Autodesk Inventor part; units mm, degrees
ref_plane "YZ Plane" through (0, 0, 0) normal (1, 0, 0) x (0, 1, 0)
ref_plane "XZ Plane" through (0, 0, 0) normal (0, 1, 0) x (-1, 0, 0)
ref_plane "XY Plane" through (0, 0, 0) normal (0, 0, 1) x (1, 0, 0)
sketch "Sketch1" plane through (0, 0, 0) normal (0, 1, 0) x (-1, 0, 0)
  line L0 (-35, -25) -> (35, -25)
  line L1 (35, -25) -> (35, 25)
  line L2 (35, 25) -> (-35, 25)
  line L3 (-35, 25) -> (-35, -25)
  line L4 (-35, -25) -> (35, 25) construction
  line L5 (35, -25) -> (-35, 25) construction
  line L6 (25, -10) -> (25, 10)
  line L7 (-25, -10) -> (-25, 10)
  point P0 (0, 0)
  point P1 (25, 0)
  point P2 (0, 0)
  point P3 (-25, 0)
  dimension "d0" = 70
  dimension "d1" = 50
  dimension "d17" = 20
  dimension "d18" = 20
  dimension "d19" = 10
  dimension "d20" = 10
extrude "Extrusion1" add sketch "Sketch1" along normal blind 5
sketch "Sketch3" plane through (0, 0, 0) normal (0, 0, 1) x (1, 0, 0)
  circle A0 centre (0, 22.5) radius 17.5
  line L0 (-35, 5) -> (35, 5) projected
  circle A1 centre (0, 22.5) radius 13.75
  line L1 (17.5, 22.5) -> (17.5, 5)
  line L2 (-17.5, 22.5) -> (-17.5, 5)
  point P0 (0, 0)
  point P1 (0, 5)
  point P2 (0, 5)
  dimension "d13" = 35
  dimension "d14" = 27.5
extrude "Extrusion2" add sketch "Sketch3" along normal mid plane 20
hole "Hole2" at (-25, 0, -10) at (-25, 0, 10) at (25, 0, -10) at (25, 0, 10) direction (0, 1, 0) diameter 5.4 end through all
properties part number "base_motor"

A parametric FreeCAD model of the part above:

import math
import FreeCAD as App
import Part
import Sketcher
Q = App.Units.Quantity

doc = App.newDocument("Part")
body = doc.addObject("PartDesign::Body", "Body")

sketch1 = doc.addObject("Sketcher::SketchObject", "Sketch")
body.addObject(sketch1)
sketch1.AttachmentSupport = (doc.XZ_Plane, [""])
sketch1.MapMode = "FlatFace"
sketch1.addGeometry(Part.LineSegment(App.Vector(35, 25, 0), App.Vector(35, -25, 0)), False)
sketch1.addGeometry(Part.LineSegment(App.Vector(35, -25, 0), App.Vector(-35, -25, 0)), False)
sketch1.addGeometry(Part.LineSegment(App.Vector(-35, -25, 0), App.Vector(-35, 25, 0)), False)
sketch1.addGeometry(Part.LineSegment(App.Vector(-35, 25, 0), App.Vector(35, 25, 0)), False)
sketch1.addConstraint(Sketcher.Constraint("Coincident", 0, 2, 1, 1))
sketch1.addConstraint(Sketcher.Constraint("Coincident", 1, 2, 2, 1))
sketch1.addConstraint(Sketcher.Constraint("Coincident", 2, 2, 3, 1))
sketch1.addConstraint(Sketcher.Constraint("Coincident", 3, 2, 0, 1))
sketch1.addConstraint(Sketcher.Constraint("Vertical", 0))
sketch1.addConstraint(Sketcher.Constraint("Horizontal", 1))
sketch1.addConstraint(Sketcher.Constraint("Vertical", 2))
sketch1.addConstraint(Sketcher.Constraint("Horizontal", 3))
sketch1.addConstraint(Sketcher.Constraint("Symmetric", 0, 2, 2, 2, -1, 1))
sketch1.addConstraint(Sketcher.Constraint("DistanceX", 1, 2, 1, 1, Q("70 mm")))
sketch1.addConstraint(Sketcher.Constraint("DistanceY", 0, 2, 0, 1, Q("50 mm")))
pad1 = doc.addObject("PartDesign::Pad", "Pad")
body.addObject(pad1)
pad1.Profile = sketch1
pad1.Length = 5
pad1.Reversed = True

sketch2 = doc.addObject("Sketcher::SketchObject", "Sketch001")
body.addObject(sketch2)
sketch2.AttachmentSupport = (doc.XY_Plane, [""])
sketch2.MapMode = "FlatFace"
sketch2.addGeometry(Part.ArcOfCircle(Part.Circle(App.Vector(0, 22.5, 0), App.Vector(0, 0, 1), 17.5), math.radians(0), math.radians(180)), False)
sketch2.addGeometry(Part.LineSegment(App.Vector(-17.5, 22.5, 0), App.Vector(-17.5, 5, 0)), False)
sketch2.addGeometry(Part.LineSegment(App.Vector(-17.5, 5, 0), App.Vector(17.5, 5, 0)), False)
sketch2.addGeometry(Part.LineSegment(App.Vector(17.5, 5, 0), App.Vector(17.5, 22.5, 0)), False)
sketch2.addGeometry(Part.Circle(App.Vector(0, 22.5, 0), App.Vector(0, 0, 1), 13.75), False)
sketch2.addConstraint(Sketcher.Constraint("Tangent", 0, 2, 1, 1))
sketch2.addConstraint(Sketcher.Constraint("Coincident", 1, 2, 2, 1))
sketch2.addConstraint(Sketcher.Constraint("Coincident", 2, 2, 3, 1))
sketch2.addConstraint(Sketcher.Constraint("Tangent", 3, 2, 0, 1))
sketch2.addConstraint(Sketcher.Constraint("Vertical", 1))
sketch2.addConstraint(Sketcher.Constraint("Horizontal", 2))
sketch2.addConstraint(Sketcher.Constraint("Vertical", 3))
sketch2.addConstraint(Sketcher.Constraint("Coincident", 4, 3, 0, 3))
sketch2.addConstraint(Sketcher.Constraint("PointOnObject", 0, 3, -2))
sketch2.addConstraint(Sketcher.Constraint("Diameter", 4, Q("27.5 mm")))
sketch2.addConstraint(Sketcher.Constraint("Radius", 0, Q("17.5 mm")))
sketch2.addConstraint(Sketcher.Constraint("DistanceY", 1, 2, 1, 1, Q("17.5 mm")))
sketch2.addConstraint(Sketcher.Constraint("DistanceY", -1, 1, 1, 2, Q("5 mm")))
pad2 = doc.addObject("PartDesign::Pad", "Pad001")
body.addObject(pad2)
pad2.Profile = sketch2
pad2.Length = 20
pad2.Midplane = True

sketch3 = doc.addObject("Sketcher::SketchObject", "Sketch002")
body.addObject(sketch3)
sketch3.AttachmentSupport = (doc.XZ_Plane, [""])
sketch3.MapMode = "FlatFace"
sketch3.addGeometry(Part.Circle(App.Vector(-25, -10, 0), App.Vector(0, 0, 1), 2.7), False)
sketch3.addGeometry(Part.Circle(App.Vector(-25, 10, 0), App.Vector(0, 0, 1), 2.7), False)
sketch3.addGeometry(Part.Circle(App.Vector(25, -10, 0), App.Vector(0, 0, 1), 2.7), False)
sketch3.addGeometry(Part.Circle(App.Vector(25, 10, 0), App.Vector(0, 0, 1), 2.7), False)
sketch3.addConstraint(Sketcher.Constraint("Equal", 0, 1))
sketch3.addConstraint(Sketcher.Constraint("Equal", 1, 2))
sketch3.addConstraint(Sketcher.Constraint("Equal", 2, 3))
sketch3.addConstraint(Sketcher.Constraint("Symmetric", 1, 3, 2, 3, -1, 1))
sketch3.addConstraint(Sketcher.Constraint("Symmetric", 0, 3, 3, 3, -1, 1))
sketch3.addConstraint(Sketcher.Constraint("Symmetric", 0, 3, 2, 3, -2))
sketch3.addConstraint(Sketcher.Constraint("Diameter", 0, Q("5.4 mm")))
sketch3.addConstraint(Sketcher.Constraint("DistanceX", 0, 3, -1, 1, Q("25 mm")))
sketch3.addConstraint(Sketcher.Constraint("DistanceY", 0, 3, -1, 1, Q("10 mm")))
doc.recompute()
hole = doc.addObject("PartDesign::Hole", "Hole")
body.addObject(hole)
hole.Profile = sketch3
hole.ThreadType = "None"
hole.Diameter = 5.4
hole.DepthType = "ThroughAll"

doc.recompute()
